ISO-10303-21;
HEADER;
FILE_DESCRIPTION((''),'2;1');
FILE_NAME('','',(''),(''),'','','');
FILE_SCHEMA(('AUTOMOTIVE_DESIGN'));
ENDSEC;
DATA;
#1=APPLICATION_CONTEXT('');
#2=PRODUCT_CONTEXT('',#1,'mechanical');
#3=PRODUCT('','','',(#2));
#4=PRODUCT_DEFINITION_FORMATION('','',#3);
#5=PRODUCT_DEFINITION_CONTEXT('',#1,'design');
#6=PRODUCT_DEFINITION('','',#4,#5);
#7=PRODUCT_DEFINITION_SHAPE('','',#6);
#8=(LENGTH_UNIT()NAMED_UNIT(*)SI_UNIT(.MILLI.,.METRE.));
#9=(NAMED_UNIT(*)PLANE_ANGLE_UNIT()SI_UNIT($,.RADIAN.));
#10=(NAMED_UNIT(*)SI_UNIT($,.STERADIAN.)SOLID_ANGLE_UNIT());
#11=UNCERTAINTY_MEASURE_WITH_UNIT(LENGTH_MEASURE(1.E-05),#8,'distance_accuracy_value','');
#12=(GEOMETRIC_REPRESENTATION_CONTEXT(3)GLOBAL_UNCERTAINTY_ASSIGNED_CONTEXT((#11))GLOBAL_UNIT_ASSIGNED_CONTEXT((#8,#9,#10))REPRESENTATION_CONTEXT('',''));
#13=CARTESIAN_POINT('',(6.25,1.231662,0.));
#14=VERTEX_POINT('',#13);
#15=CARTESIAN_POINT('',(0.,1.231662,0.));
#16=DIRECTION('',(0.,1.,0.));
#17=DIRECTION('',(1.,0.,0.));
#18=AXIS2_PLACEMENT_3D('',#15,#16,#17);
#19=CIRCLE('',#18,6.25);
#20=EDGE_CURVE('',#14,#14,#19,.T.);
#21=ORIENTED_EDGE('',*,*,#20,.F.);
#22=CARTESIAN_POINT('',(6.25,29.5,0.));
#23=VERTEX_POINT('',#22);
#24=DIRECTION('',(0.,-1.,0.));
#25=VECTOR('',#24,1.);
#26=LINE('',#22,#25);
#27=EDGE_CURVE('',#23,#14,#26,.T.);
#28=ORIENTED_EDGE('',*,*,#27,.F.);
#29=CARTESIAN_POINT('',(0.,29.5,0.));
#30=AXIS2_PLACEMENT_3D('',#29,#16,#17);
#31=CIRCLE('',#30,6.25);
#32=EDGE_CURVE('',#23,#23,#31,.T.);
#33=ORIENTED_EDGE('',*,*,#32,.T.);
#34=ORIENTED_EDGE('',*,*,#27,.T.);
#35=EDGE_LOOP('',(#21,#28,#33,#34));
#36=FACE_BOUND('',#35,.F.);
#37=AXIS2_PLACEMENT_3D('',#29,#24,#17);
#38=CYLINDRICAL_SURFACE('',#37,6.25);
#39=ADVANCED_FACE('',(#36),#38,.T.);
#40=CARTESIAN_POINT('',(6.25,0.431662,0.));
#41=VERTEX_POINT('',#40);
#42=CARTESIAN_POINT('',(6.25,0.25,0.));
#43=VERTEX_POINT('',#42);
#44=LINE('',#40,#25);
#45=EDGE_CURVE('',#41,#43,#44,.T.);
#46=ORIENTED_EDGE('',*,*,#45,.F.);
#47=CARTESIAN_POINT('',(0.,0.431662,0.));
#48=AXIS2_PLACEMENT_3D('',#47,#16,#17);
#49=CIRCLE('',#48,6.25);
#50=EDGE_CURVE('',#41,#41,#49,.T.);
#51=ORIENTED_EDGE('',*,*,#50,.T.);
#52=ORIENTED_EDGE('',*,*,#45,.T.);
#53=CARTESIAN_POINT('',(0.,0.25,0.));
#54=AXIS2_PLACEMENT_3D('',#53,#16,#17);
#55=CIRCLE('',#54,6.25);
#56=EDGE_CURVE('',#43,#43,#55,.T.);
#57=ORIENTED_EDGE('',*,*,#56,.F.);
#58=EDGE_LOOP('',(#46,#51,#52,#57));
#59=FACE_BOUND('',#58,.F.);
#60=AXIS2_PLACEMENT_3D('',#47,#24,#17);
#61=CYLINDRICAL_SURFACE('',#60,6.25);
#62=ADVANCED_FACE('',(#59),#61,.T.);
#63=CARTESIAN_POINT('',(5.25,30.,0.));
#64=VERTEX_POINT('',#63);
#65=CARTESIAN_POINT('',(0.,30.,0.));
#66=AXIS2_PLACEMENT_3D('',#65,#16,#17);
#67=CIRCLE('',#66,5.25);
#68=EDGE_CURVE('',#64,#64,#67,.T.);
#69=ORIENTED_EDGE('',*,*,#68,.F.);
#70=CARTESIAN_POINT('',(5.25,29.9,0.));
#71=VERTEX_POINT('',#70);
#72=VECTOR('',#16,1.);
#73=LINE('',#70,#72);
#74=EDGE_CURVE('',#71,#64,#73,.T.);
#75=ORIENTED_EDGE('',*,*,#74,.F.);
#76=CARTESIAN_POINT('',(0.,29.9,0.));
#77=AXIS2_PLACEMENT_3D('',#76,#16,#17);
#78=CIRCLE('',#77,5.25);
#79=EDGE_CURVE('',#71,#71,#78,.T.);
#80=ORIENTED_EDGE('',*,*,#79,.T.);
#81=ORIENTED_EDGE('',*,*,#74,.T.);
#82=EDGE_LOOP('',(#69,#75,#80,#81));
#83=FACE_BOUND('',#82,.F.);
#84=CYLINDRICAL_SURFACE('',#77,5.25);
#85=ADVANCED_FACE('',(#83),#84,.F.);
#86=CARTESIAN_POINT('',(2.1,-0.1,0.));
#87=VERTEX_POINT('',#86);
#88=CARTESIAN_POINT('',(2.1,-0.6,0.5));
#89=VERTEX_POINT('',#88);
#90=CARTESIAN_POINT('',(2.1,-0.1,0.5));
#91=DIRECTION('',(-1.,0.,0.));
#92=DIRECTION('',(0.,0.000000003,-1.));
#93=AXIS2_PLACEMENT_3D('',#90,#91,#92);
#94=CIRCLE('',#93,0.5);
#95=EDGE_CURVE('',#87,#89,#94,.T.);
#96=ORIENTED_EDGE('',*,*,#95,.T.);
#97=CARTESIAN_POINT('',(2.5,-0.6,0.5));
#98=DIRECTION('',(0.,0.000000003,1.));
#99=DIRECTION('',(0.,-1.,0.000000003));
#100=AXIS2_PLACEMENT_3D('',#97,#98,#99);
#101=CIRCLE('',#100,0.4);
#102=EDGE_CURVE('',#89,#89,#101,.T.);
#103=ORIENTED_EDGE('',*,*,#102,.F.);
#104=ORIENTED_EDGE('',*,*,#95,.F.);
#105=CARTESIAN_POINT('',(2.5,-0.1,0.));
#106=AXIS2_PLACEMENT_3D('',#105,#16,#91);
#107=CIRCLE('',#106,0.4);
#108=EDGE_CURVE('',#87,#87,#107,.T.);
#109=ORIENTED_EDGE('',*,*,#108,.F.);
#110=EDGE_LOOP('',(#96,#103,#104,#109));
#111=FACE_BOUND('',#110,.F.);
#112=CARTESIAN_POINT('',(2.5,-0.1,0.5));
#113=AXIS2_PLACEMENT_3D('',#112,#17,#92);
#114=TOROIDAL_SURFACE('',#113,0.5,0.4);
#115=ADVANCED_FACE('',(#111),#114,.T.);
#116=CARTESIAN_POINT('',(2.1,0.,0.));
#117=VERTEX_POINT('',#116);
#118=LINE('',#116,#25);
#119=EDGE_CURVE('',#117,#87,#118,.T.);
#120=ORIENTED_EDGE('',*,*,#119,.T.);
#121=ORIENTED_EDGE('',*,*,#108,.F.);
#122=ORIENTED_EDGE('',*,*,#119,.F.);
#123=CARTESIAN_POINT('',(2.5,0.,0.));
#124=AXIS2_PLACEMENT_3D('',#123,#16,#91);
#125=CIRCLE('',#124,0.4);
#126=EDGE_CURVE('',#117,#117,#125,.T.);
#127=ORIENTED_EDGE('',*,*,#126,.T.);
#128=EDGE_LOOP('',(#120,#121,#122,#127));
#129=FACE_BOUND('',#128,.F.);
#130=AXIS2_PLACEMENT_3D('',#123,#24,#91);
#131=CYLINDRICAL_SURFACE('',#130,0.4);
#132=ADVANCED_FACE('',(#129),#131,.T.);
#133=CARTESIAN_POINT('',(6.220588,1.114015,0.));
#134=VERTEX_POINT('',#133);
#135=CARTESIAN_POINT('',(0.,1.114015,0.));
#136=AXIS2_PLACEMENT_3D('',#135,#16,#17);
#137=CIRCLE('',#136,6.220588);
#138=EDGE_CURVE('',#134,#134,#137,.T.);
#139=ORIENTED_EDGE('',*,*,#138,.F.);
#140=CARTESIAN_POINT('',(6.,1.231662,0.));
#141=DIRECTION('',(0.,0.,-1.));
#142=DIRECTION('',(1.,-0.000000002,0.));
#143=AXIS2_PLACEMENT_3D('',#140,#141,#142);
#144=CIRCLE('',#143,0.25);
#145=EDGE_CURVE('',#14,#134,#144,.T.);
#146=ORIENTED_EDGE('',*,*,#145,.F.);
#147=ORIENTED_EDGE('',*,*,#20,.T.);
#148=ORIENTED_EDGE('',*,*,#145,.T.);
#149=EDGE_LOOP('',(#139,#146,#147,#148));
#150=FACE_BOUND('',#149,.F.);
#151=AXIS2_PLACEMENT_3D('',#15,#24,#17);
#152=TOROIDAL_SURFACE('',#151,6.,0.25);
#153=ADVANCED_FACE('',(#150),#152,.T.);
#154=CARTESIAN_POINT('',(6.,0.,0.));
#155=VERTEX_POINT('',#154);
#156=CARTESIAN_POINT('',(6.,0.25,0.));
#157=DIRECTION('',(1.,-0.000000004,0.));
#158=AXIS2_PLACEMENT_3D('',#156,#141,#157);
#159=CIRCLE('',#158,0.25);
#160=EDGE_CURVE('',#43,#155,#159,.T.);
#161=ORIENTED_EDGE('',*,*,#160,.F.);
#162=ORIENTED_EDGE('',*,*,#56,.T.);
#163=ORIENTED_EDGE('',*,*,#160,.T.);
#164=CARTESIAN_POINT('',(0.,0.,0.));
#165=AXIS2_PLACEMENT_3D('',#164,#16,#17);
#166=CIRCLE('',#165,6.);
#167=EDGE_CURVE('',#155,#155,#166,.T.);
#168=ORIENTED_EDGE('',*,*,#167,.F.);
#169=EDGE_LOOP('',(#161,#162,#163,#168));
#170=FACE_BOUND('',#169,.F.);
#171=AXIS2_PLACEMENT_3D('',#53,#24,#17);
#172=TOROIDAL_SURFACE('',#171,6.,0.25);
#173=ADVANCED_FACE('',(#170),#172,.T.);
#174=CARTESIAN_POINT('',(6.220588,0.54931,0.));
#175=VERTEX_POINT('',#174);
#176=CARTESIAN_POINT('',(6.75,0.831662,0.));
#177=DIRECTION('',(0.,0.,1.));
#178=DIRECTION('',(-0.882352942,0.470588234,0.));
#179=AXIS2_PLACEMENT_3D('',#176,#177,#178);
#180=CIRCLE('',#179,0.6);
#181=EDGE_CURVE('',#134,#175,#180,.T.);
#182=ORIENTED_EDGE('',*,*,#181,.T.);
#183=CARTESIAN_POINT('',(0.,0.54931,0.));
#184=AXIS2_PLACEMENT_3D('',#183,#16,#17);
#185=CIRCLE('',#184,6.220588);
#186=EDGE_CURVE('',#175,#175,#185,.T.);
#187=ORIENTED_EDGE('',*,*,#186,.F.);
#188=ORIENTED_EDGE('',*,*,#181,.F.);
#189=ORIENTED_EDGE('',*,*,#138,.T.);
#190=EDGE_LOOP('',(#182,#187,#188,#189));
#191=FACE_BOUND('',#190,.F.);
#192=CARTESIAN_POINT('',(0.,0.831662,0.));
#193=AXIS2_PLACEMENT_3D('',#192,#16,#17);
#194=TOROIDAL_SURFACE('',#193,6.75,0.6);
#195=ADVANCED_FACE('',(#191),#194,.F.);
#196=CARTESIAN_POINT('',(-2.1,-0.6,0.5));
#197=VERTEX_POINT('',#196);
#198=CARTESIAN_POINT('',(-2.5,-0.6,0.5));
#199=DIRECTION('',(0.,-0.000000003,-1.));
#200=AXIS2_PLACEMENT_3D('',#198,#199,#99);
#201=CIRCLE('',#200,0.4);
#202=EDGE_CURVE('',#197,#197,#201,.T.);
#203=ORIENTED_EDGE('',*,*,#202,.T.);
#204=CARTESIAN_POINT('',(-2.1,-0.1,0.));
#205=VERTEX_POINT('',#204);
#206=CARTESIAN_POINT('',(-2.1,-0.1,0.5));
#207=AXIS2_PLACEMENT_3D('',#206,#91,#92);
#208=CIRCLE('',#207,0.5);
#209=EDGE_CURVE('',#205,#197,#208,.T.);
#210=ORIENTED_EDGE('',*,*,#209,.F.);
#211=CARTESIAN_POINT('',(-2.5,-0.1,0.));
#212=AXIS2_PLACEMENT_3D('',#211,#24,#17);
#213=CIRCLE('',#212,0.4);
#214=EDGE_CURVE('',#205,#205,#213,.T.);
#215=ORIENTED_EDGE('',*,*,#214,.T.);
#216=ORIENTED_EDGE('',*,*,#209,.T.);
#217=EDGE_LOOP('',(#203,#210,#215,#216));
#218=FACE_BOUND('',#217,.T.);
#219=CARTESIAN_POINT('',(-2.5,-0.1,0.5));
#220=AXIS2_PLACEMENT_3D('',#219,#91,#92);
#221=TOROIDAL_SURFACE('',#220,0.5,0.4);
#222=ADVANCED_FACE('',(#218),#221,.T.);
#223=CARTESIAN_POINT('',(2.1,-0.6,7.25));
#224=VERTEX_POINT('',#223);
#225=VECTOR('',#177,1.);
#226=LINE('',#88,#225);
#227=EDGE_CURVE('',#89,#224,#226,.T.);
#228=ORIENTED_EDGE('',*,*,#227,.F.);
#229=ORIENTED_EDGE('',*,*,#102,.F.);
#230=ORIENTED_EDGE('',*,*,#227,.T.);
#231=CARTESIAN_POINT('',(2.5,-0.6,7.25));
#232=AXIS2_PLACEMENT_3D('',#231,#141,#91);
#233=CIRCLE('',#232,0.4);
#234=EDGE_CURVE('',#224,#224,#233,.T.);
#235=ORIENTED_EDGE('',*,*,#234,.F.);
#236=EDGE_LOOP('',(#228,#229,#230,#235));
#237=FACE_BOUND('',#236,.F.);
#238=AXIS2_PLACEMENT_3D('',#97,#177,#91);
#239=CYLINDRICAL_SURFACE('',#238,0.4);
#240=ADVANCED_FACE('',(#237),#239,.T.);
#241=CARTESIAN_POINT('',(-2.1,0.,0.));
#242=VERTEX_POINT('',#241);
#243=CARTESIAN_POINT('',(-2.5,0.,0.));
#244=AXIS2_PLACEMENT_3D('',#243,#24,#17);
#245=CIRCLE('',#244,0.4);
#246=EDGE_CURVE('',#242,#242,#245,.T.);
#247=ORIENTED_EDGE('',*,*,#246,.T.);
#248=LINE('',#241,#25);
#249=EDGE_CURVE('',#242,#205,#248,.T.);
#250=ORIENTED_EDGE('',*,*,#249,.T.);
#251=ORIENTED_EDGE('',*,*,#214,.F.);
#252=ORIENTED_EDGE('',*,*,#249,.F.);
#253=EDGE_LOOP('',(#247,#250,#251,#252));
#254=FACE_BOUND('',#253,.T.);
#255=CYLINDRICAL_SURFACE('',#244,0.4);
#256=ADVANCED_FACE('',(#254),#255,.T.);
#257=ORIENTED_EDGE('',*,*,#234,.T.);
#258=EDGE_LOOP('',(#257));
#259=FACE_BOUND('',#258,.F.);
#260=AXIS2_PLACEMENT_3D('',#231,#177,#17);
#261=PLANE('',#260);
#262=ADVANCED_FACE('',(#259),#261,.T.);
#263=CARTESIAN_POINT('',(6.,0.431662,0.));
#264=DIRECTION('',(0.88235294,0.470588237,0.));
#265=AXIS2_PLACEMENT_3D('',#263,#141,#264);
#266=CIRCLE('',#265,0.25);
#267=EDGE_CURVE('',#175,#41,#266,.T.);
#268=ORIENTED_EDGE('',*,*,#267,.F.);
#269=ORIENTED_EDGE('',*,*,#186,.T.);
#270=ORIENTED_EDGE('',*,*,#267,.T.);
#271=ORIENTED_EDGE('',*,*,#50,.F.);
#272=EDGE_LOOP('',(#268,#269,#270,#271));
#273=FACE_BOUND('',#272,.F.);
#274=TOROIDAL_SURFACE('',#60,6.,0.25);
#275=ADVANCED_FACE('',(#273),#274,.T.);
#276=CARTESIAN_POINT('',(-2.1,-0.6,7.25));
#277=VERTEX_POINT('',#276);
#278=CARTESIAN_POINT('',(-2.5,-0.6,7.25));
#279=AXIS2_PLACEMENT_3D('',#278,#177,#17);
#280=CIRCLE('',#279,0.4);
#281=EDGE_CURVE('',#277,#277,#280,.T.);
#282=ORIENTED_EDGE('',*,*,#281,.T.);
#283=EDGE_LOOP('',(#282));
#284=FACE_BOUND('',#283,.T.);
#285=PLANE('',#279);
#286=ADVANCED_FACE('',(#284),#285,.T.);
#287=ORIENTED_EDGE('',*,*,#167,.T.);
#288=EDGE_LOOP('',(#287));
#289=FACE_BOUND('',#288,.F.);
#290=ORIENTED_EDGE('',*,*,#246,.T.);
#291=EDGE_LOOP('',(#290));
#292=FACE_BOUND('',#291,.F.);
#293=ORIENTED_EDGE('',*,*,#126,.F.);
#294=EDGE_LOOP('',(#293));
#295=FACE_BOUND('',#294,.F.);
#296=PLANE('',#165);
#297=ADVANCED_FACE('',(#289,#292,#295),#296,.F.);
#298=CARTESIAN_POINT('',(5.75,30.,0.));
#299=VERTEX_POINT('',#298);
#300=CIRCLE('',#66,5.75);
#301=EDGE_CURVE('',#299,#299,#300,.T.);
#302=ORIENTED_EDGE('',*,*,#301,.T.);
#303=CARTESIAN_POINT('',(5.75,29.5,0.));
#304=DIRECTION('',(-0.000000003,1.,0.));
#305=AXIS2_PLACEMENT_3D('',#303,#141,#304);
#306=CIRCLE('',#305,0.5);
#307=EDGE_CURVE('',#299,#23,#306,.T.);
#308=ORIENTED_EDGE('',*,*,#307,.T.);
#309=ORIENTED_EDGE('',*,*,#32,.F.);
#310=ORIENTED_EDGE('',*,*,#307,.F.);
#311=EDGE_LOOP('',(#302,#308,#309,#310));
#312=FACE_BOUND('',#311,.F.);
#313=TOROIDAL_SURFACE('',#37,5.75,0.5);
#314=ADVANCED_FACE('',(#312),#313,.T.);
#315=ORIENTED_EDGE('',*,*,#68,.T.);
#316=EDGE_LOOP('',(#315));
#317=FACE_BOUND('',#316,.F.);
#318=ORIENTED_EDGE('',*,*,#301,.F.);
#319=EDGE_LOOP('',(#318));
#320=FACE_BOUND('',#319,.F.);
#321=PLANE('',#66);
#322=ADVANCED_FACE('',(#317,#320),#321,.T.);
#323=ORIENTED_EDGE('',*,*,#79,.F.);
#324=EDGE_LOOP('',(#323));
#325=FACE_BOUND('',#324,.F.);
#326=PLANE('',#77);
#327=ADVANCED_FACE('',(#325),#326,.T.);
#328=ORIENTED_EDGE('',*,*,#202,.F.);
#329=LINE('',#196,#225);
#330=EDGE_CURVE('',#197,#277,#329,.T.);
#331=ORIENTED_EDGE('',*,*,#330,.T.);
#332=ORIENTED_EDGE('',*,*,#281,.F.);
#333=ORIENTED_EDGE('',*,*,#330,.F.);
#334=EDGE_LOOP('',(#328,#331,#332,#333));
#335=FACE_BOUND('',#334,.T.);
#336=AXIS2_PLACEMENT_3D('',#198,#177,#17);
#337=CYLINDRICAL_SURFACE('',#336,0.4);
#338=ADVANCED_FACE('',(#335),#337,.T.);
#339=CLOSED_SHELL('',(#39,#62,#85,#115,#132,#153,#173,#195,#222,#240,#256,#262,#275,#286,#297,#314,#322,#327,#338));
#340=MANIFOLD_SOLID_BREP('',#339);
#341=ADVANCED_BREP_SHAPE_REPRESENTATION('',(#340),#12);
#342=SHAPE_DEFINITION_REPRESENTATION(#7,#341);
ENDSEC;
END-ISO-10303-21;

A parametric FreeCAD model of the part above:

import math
import FreeCAD as App
import Part
import Sketcher
Q = App.Units.Quantity

doc = App.newDocument("Part")
params = doc.addObject("Spreadsheet::Sheet", "Params")
for row, (alias, value) in enumerate([
    ("sketch1_radius", "0.6 mm"),
    ("sketch1_radius2", "0.5 mm"),
    ("sketch1_width", "6 mm"),
    ("sketch1_radius3", "0.25 mm"),
    ("sketch1_width2", "0.5 mm"),
    ("revolution_angle", "360 deg"),
    ("sketch2_diameter", "0.8 mm"),
    ("sketch3_radius", "0.5 mm"),
    ("sketch3_width", "0.1 mm"),
    ("sketch3_height", "6.75 mm"),
], start=1):
    params.set(f"A{row}", alias)
    params.set(f"B{row}", "=" + value)
    params.setAlias(f"B{row}", alias)

body = doc.addObject("PartDesign::Body", "Body")

# Sketch on XY plane
sketch1 = doc.addObject("Sketcher::SketchObject", "Sketch")
body.addObject(sketch1)
sketch1.AttachmentSupport = (doc.XY_Plane, [""])
sketch1.MapMode = "FlatFace"
sketch1.addGeometry([
    Part.LineSegment(App.Vector(5.25, 29.9, 0), App.Vector(0, 29.9, 0)),  # 0
    Part.LineSegment(App.Vector(0, 29.9, 0), App.Vector(0, 0, 0)),  # 1
    Part.LineSegment(App.Vector(0, 0, 0), App.Vector(6, 0, 0)),  # 2
    Part.ArcOfCircle(Part.Circle(App.Vector(6, 0.25, 0), App.Vector(0, 0, 1), 0.25), math.radians(-90), math.radians(0)),  # 3
    Part.LineSegment(App.Vector(6.25, 0.25, 0), App.Vector(6.25, 0.43, 0)),  # 4
    Part.ArcOfCircle(Part.Circle(App.Vector(6, 0.43, 0), App.Vector(0, 0, 1), 0.25), math.radians(0), math.radians(28)),  # 5
    Part.ArcOfCircle(Part.Circle(App.Vector(6.75, 0.83, 0), App.Vector(0, 0, 1), 0.6), math.radians(152), math.radians(208)),  # 6
    Part.ArcOfCircle(Part.Circle(App.Vector(6, 1.23, 0), App.Vector(0, 0, 1), 0.25), math.radians(-28), math.radians(0)),  # 7
    Part.LineSegment(App.Vector(6.25, 1.23, 0), App.Vector(6.25, 29.5, 0)),  # 8
    Part.ArcOfCircle(Part.Circle(App.Vector(5.75, 29.5, 0), App.Vector(0, 0, 1), 0.5), math.radians(0), math.radians(90)),  # 9
    Part.LineSegment(App.Vector(5.75, 30, 0), App.Vector(5.25, 30, 0)),  # 10
    Part.LineSegment(App.Vector(5.25, 30, 0), App.Vector(5.25, 29.9, 0)),  # 11
], False)
sketch1.addConstraint([
    Sketcher.Constraint("Coincident", 0, 2, 1, 1),
    Sketcher.Constraint("Coincident", 1, 2, 2, 1),
    Sketcher.Constraint("Tangent", 2, 2, 3, 1),
    Sketcher.Constraint("Tangent", 3, 2, 4, 1),
    Sketcher.Constraint("Tangent", 4, 2, 5, 1),
    Sketcher.Constraint("Tangent", 5, 2, 6, 2),
    Sketcher.Constraint("Tangent", 6, 1, 7, 1),
    Sketcher.Constraint("Tangent", 7, 2, 8, 1),
    Sketcher.Constraint("Tangent", 8, 2, 9, 1),
    Sketcher.Constraint("Tangent", 9, 2, 10, 1),
    Sketcher.Constraint("Coincident", 10, 2, 11, 1),
    Sketcher.Constraint("Coincident", 11, 2, 0, 1),
    Sketcher.Constraint("Horizontal", 0),
    Sketcher.Constraint("Vertical", 1),
    Sketcher.Constraint("Horizontal", 2),
    Sketcher.Constraint("Vertical", 4),
    Sketcher.Constraint("Vertical", 8),
    Sketcher.Constraint("Horizontal", 10),
    Sketcher.Constraint("Vertical", 11),
    Sketcher.Constraint("Coincident", 1, 2, -1, 1),
    Sketcher.Constraint("Equal", 3, 5),
    Sketcher.Constraint("Equal", 5, 7),
    Sketcher.Constraint("Vertical", 5, 3, 7, 3),
    Sketcher.Constraint("Radius", 6, Q("0.6 mm")),
    Sketcher.Constraint("Radius", 9, Q("0.5 mm")),
    Sketcher.Constraint("DistanceX", 2, 1, 2, 2, Q("6 mm")),
    Sketcher.Constraint("Radius", 3, Q("0.25 mm")),
    Sketcher.Constraint("DistanceX", 10, 2, 10, 1, Q("0.5 mm")),
    Sketcher.Constraint("DistanceY", 1, 2, 1, 1, Q("29.9 mm")),
    Sketcher.Constraint("DistanceY", 11, 2, 11, 1, Q("0.1 mm")),
    Sketcher.Constraint("DistanceX", 9, 3, 6, 3, Q("1 mm")),
    Sketcher.Constraint("DistanceY", 4, 1, 4, 2, Q("0.181662 mm")),
])
sketch1.setExpression("Constraints[23]", "Params.sketch1_radius")
sketch1.setExpression("Constraints[24]", "Params.sketch1_radius2")
sketch1.setExpression("Constraints[25]", "Params.sketch1_width")
sketch1.setExpression("Constraints[26]", "Params.sketch1_radius3")
sketch1.setExpression("Constraints[27]", "Params.sketch1_width2")
revolution = doc.addObject("PartDesign::Revolution", "Revolution")
body.addObject(revolution)
revolution.Profile = sketch1
revolution.ReferenceAxis = (sketch1, ["V_Axis"])
revolution.setExpression("Angle", "Params.revolution_angle")

# Sketch on XZ plane
sketch2 = doc.addObject("Sketcher::SketchObject", "Sketch001")
body.addObject(sketch2)
sketch2.AttachmentSupport = (doc.XZ_Plane, [""])
sketch2.MapMode = "FlatFace"
sketch2.addGeometry(Part.Circle(App.Vector(-2.5, 0, 0), App.Vector(0, 0, 1), 0.4), False)
sketch2.addConstraint([
    Sketcher.Constraint("PointOnObject", 0, 3, -1),
    Sketcher.Constraint("Diameter", 0, Q("0.8 mm")),
    Sketcher.Constraint("DistanceX", 0, 3, -1, 1, Q("2.5 mm")),
])
sketch2.setExpression("Constraints[1]", "Params.sketch2_diameter")

# Sketch on YZ plane
sketch3 = doc.addObject("Sketcher::SketchObject", "Sketch002")
body.addObject(sketch3)
sketch3.AttachmentSupport = (doc.YZ_Plane, [""])
sketch3.MapMode = "FlatFace"
sketch3.AttachmentOffset = App.Placement(App.Vector(0, 0, -2.5), App.Rotation())
sketch3.addGeometry([
    Part.LineSegment(App.Vector(0, 0, 0), App.Vector(-0.1, 0, 0)),
    Part.ArcOfCircle(Part.Circle(App.Vector(-0.1, 0.5, 0), App.Vector(0, 0, 1), 0.5), math.radians(180), math.radians(270)),
    Part.LineSegment(App.Vector(-0.6, 0.5, 0), App.Vector(-0.6, 7.25, 0)),
], False)
sketch3.addConstraint([
    Sketcher.Constraint("Tangent", 0, 2, 1, 2),
    Sketcher.Constraint("Tangent", 1, 1, 2, 1),
    Sketcher.Constraint("Horizontal", 0),
    Sketcher.Constraint("Vertical", 2),
    Sketcher.Constraint("Coincident", 0, 1, -1, 1),
    Sketcher.Constraint("Radius", 1, Q("0.5 mm")),
    Sketcher.Constraint("DistanceX", 0, 2, 0, 1, Q("0.1 mm")),
    Sketcher.Constraint("DistanceY", 2, 1, 2, 2, Q("6.75 mm")),
])
sketch3.setExpression("Constraints[5]", "Params.sketch3_radius")
sketch3.setExpression("Constraints[6]", "Params.sketch3_width")
sketch3.setExpression("Constraints[7]", "Params.sketch3_height")
doc.recompute()

additivepipe = doc.addObject("PartDesign::AdditivePipe", "AdditivePipe")
body.addObject(additivepipe)
additivepipe.Profile = sketch2
additivepipe.Spine = (sketch3, ["Edge1", "Edge2", "Edge3"])
doc.recompute()

mirrored = doc.addObject("PartDesign::Mirrored", "Mirrored")
body.addObject(mirrored)
mirrored.Originals = [additivepipe]
mirrored.MirrorPlane = (doc.YZ_Plane, [""])
body.Tip = mirrored

doc.recompute()
